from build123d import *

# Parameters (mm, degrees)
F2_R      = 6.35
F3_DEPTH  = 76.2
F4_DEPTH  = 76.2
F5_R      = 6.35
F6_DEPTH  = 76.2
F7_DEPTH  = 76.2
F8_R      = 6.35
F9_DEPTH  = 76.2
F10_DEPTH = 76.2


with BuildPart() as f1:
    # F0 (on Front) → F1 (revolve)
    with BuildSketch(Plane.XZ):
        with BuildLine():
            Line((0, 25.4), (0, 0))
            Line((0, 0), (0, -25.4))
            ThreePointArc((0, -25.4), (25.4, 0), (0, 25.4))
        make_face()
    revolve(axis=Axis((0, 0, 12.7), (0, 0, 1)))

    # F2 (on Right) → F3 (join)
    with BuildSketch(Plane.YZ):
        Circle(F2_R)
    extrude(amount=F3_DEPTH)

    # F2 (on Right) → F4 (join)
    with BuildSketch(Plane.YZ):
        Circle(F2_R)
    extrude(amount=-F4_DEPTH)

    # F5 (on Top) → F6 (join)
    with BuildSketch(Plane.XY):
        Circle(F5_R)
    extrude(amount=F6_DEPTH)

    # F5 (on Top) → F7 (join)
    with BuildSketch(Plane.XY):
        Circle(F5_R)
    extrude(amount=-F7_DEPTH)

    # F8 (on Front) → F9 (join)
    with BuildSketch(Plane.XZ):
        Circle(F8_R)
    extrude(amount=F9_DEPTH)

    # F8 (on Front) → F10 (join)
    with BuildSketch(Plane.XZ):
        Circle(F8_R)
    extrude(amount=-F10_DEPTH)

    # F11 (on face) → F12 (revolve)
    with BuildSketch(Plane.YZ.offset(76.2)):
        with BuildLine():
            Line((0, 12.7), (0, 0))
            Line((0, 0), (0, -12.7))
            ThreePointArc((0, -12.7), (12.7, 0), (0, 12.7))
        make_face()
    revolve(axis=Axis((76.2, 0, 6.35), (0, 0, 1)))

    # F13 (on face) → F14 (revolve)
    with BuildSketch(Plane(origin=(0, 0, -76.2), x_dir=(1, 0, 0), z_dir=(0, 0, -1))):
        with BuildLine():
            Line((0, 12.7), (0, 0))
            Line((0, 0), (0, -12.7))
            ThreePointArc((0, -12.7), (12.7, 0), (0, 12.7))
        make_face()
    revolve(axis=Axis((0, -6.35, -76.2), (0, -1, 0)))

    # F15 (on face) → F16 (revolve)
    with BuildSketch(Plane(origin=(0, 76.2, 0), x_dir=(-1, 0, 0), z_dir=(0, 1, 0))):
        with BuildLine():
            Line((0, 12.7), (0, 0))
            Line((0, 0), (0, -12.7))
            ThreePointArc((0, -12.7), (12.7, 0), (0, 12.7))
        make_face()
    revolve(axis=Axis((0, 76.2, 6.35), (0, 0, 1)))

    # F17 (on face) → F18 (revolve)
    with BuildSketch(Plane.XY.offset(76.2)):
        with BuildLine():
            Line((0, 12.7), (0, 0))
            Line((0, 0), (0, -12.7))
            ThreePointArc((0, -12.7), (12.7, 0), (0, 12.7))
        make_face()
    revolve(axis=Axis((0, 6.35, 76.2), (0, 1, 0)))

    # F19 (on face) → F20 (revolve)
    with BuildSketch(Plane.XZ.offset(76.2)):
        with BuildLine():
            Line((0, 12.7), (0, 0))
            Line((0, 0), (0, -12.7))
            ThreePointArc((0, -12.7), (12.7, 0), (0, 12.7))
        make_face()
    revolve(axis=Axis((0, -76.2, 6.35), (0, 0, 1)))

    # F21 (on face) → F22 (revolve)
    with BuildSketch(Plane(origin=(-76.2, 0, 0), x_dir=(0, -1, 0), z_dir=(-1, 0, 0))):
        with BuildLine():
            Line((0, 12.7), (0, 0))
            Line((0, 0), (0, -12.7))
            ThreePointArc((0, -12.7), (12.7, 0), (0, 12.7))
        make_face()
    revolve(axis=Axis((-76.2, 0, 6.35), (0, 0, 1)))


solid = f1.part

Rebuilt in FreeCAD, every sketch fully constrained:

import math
import FreeCAD as App
import Part
import Sketcher
Q = App.Units.Quantity

doc = App.newDocument("Part")
body = doc.addObject("PartDesign::Body", "Body")

# Sketch on XZ plane
sketch1 = body.newObject("Sketcher::SketchObject", "Sketch")
sketch1.AttachmentSupport = (doc.getObject("XZ_Plane"), [""])
sketch1.MapMode = "FlatFace"
sketch1.addGeometry(Part.LineSegment(App.Vector(0, 25.4, 0), App.Vector(0, -25.4, 0)), False)
sketch1.addGeometry(Part.ArcOfCircle(Part.Circle(App.Vector(0, 0, 0), App.Vector(0, 0, 1), 25.4), math.radians(-90), math.radians(90)), False)
sketch1.addConstraint(Sketcher.Constraint("Coincident", 0, 1, 1, 2))
sketch1.addConstraint(Sketcher.Constraint("Coincident", 1, 1, 0, 2))
sketch1.addConstraint(Sketcher.Constraint("Vertical", 0))
sketch1.addConstraint(Sketcher.Constraint("Coincident", 1, 3, -1, 1))
sketch1.addConstraint(Sketcher.Constraint("PointOnObject", 0, 1, -2))
sketch1.addConstraint(Sketcher.Constraint("Radius", 1, Q("1 in")))
revolution = body.newObject("PartDesign::Revolution", "Revolution")
revolution.Profile = sketch1
revolution.ReferenceAxis = (sketch1, ["V_Axis"])
revolution.Angle = 360

# Sketch on YZ plane
sketch2 = body.newObject("Sketcher::SketchObject", "Sketch001")
sketch2.AttachmentSupport = (doc.getObject("YZ_Plane"), [""])
sketch2.MapMode = "FlatFace"
sketch2.addGeometry(Part.Circle(App.Vector(0, 0, 0), App.Vector(0, 0, 1), 6.35), False)
sketch2.addConstraint(Sketcher.Constraint("Coincident", 0, 3, -1, 1))
sketch2.addConstraint(Sketcher.Constraint("Diameter", 0, Q("0.5 in")))
pad1 = body.newObject("PartDesign::Pad", "Pad")
pad1.Profile = sketch2
pad1.Length = Q("3 in")

# Sketch on YZ plane
sketch3 = body.newObject("Sketcher::SketchObject", "Sketch002")
sketch3.AttachmentSupport = (doc.getObject("YZ_Plane"), [""])
sketch3.MapMode = "FlatFace"
sketch3.addGeometry(Part.Circle(App.Vector(0, 0, 0), App.Vector(0, 0, 1), 6.35), False)
sketch3.addConstraint(Sketcher.Constraint("Coincident", 0, 3, -1, 1))
sketch3.addConstraint(Sketcher.Constraint("Diameter", 0, Q("0.5 in")))
pad2 = body.newObject("PartDesign::Pad", "Pad001")
pad2.Profile = sketch3
pad2.Length = Q("3 in")
pad2.Reversed = True

# Sketch on XY plane
sketch4 = body.newObject("Sketcher::SketchObject", "Sketch003")
sketch4.AttachmentSupport = (doc.getObject("XY_Plane"), [""])
sketch4.MapMode = "FlatFace"
sketch4.addGeometry(Part.Circle(App.Vector(0, 0, 0), App.Vector(0, 0, 1), 6.35), False)
sketch4.addConstraint(Sketcher.Constraint("Coincident", 0, 3, -1, 1))
sketch4.addConstraint(Sketcher.Constraint("Diameter", 0, Q("0.5 in")))
pad3 = body.newObject("PartDesign::Pad", "Pad002")
pad3.Profile = sketch4
pad3.Length = Q("3 in")

# Sketch on XY plane
sketch5 = body.newObject("Sketcher::SketchObject", "Sketch004")
sketch5.AttachmentSupport = (doc.getObject("XY_Plane"), [""])
sketch5.MapMode = "FlatFace"
sketch5.addGeometry(Part.Circle(App.Vector(0, 0, 0), App.Vector(0, 0, 1), 6.35), False)
sketch5.addConstraint(Sketcher.Constraint("Coincident", 0, 3, -1, 1))
sketch5.addConstraint(Sketcher.Constraint("Diameter", 0, Q("0.5 in")))
pad4 = body.newObject("PartDesign::Pad", "Pad003")
pad4.Profile = sketch5
pad4.Length = Q("3 in")
pad4.Reversed = True

# Sketch on XZ plane
sketch6 = body.newObject("Sketcher::SketchObject", "Sketch005")
sketch6.AttachmentSupport = (doc.getObject("XZ_Plane"), [""])
sketch6.MapMode = "FlatFace"
sketch6.addGeometry(Part.Circle(App.Vector(0, 0, 0), App.Vector(0, 0, 1), 6.35), False)
sketch6.addConstraint(Sketcher.Constraint("Coincident", 0, 3, -1, 1))
sketch6.addConstraint(Sketcher.Constraint("Diameter", 0, Q("0.5 in")))
pad5 = body.newObject("PartDesign::Pad", "Pad004")
pad5.Profile = sketch6
pad5.Length = Q("3 in")

# Sketch on XZ plane
sketch7 = body.newObject("Sketcher::SketchObject", "Sketch006")
sketch7.AttachmentSupport = (doc.getObject("XZ_Plane"), [""])
sketch7.MapMode = "FlatFace"
sketch7.addGeometry(Part.Circle(App.Vector(0, 0, 0), App.Vector(0, 0, 1), 6.35), False)
sketch7.addConstraint(Sketcher.Constraint("Coincident", 0, 3, -1, 1))
sketch7.addConstraint(Sketcher.Constraint("Diameter", 0, Q("0.5 in")))
pad6 = body.newObject("PartDesign::Pad", "Pad005")
pad6.Profile = sketch7
pad6.Length = Q("3 in")
pad6.Reversed = True

# Sketch on YZ plane
sketch8 = body.newObject("Sketcher::SketchObject", "Sketch007")
sketch8.AttachmentSupport = (doc.getObject("YZ_Plane"), [""])
sketch8.MapMode = "FlatFace"
sketch8.AttachmentOffset = App.Placement(App.Vector(0, 0, 3 * 25.4), App.Rotation())
sketch8.addGeometry(Part.LineSegment(App.Vector(0, 12.7, 0), App.Vector(0, -12.7, 0)), False)
sketch8.addGeometry(Part.ArcOfCircle(Part.Circle(App.Vector(0, 0, 0), App.Vector(0, 0, 1), 12.7), math.radians(-90), math.radians(90)), False)
sketch8.addConstraint(Sketcher.Constraint("Coincident", 0, 1, 1, 2))
sketch8.addConstraint(Sketcher.Constraint("Coincident", 1, 1, 0, 2))
sketch8.addConstraint(Sketcher.Constraint("Vertical", 0))
sketch8.addConstraint(Sketcher.Constraint("Coincident", 1, 3, -1, 1))
sketch8.addConstraint(Sketcher.Constraint("PointOnObject", 0, 1, -2))
sketch8.addConstraint(Sketcher.Constraint("Radius", 1, Q("0.5 in")))
revolution2 = body.newObject("PartDesign::Revolution", "Revolution001")
revolution2.Profile = sketch8
revolution2.ReferenceAxis = (sketch8, ["V_Axis"])
revolution2.Angle = 360

# Sketch on XY plane
sketch9 = body.newObject("Sketcher::SketchObject", "Sketch008")
sketch9.AttachmentSupport = (doc.getObject("XY_Plane"), [""])
sketch9.MapMode = "FlatFace"
sketch9.AttachmentOffset = App.Placement(App.Vector(0, 0, -3 * 25.4), App.Rotation())
sketch9.addGeometry(Part.LineSegment(App.Vector(0, -12.7, 0), App.Vector(0, 12.7, 0)), False)
sketch9.addGeometry(Part.ArcOfCircle(Part.Circle(App.Vector(0, 0, 0), App.Vector(0, 0, 1), 12.7), math.radians(-90), math.radians(90)), False)
sketch9.addConstraint(Sketcher.Constraint("Coincident", 0, 1, 1, 1))
sketch9.addConstraint(Sketcher.Constraint("Coincident", 1, 2, 0, 2))
sketch9.addConstraint(Sketcher.Constraint("Vertical", 0))
sketch9.addConstraint(Sketcher.Constraint("Coincident", 1, 3, -1, 1))
sketch9.addConstraint(Sketcher.Constraint("PointOnObject", 0, 1, -2))
sketch9.addConstraint(Sketcher.Constraint("Radius", 1, Q("0.5 in")))
revolution3 = body.newObject("PartDesign::Revolution", "Revolution002")
revolution3.Profile = sketch9
revolution3.ReferenceAxis = (sketch9, ["V_Axis"])
revolution3.Angle = 360

# Sketch on XZ plane
sketch10 = body.newObject("Sketcher::SketchObject", "Sketch009")
sketch10.AttachmentSupport = (doc.getObject("XZ_Plane"), [""])
sketch10.MapMode = "FlatFace"
sketch10.AttachmentOffset = App.Placement(App.Vector(0, 0, -3 * 25.4), App.Rotation())
sketch10.addGeometry(Part.LineSegment(App.Vector(0, 12.7, 0), App.Vector(0, -12.7, 0)), False)
sketch10.addGeometry(Part.ArcOfCircle(Part.Circle(App.Vector(0, 0, 0), App.Vector(0, 0, 1), 12.7), math.radians(90), math.radians(270)), False)
sketch10.addConstraint(Sketcher.Constraint("Coincident", 0, 1, 1, 1))
sketch10.addConstraint(Sketcher.Constraint("Coincident", 1, 2, 0, 2))
sketch10.addConstraint(Sketcher.Constraint("Vertical", 0))
sketch10.addConstraint(Sketcher.Constraint("Coincident", 1, 3, -1, 1))
sketch10.addConstraint(Sketcher.Constraint("PointOnObject", 0, 1, -2))
sketch10.addConstraint(Sketcher.Constraint("Radius", 1, Q("0.5 in")))
revolution4 = body.newObject("PartDesign::Revolution", "Revolution003")
revolution4.Profile = sketch10
revolution4.ReferenceAxis = (sketch10, ["V_Axis"])
revolution4.Angle = 360

# Sketch on XY plane
sketch11 = body.newObject("Sketcher::SketchObject", "Sketch010")
sketch11.AttachmentSupport = (doc.getObject("XY_Plane"), [""])
sketch11.MapMode = "FlatFace"
sketch11.AttachmentOffset = App.Placement(App.Vector(0, 0, 3 * 25.4), App.Rotation())
sketch11.addGeometry(Part.LineSegment(App.Vector(0, 12.7, 0), App.Vector(0, -12.7, 0)), False)
sketch11.addGeometry(Part.ArcOfCircle(Part.Circle(App.Vector(0, 0, 0), App.Vector(0, 0, 1), 12.7), math.radians(-90), math.radians(90)), False)
sketch11.addConstraint(Sketcher.Constraint("Coincident", 0, 1, 1, 2))
sketch11.addConstraint(Sketcher.Constraint("Coincident", 1, 1, 0, 2))
sketch11.addConstraint(Sketcher.Constraint("Vertical", 0))
sketch11.addConstraint(Sketcher.Constraint("Coincident", 1, 3, -1, 1))
sketch11.addConstraint(Sketcher.Constraint("PointOnObject", 0, 1, -2))
sketch11.addConstraint(Sketcher.Constraint("Radius", 1, Q("0.5 in")))
revolution5 = body.newObject("PartDesign::Revolution", "Revolution004")
revolution5.Profile = sketch11
revolution5.ReferenceAxis = (sketch11, ["V_Axis"])
revolution5.Angle = 360

# Sketch on XZ plane
sketch12 = body.newObject("Sketcher::SketchObject", "Sketch011")
sketch12.AttachmentSupport = (doc.getObject("XZ_Plane"), [""])
sketch12.MapMode = "FlatFace"
sketch12.AttachmentOffset = App.Placement(App.Vector(0, 0, 3 * 25.4), App.Rotation())
sketch12.addGeometry(Part.LineSegment(App.Vector(0, 12.7, 0), App.Vector(0, -12.7, 0)), False)
sketch12.addGeometry(Part.ArcOfCircle(Part.Circle(App.Vector(0, 0, 0), App.Vector(0, 0, 1), 12.7), math.radians(-90), math.radians(90)), False)
sketch12.addConstraint(Sketcher.Constraint("Coincident", 0, 1, 1, 2))
sketch12.addConstraint(Sketcher.Constraint("Coincident", 1, 1, 0, 2))
sketch12.addConstraint(Sketcher.Constraint("Vertical", 0))
sketch12.addConstraint(Sketcher.Constraint("Coincident", 1, 3, -1, 1))
sketch12.addConstraint(Sketcher.Constraint("PointOnObject", 0, 1, -2))
sketch12.addConstraint(Sketcher.Constraint("Radius", 1, Q("0.5 in")))
revolution6 = body.newObject("PartDesign::Revolution", "Revolution005")
revolution6.Profile = sketch12
revolution6.ReferenceAxis = (sketch12, ["V_Axis"])
revolution6.Angle = 360

# Sketch on YZ plane
sketch13 = body.newObject("Sketcher::SketchObject", "Sketch012")
sketch13.AttachmentSupport = (doc.getObject("YZ_Plane"), [""])
sketch13.MapMode = "FlatFace"
sketch13.AttachmentOffset = App.Placement(App.Vector(0, 0, -3 * 25.4), App.Rotation())
sketch13.addGeometry(Part.LineSegment(App.Vector(0, 12.7, 0), App.Vector(0, -12.7, 0)), False)
sketch13.addGeometry(Part.ArcOfCircle(Part.Circle(App.Vector(0, 0, 0), App.Vector(0, 0, 1), 12.7), math.radians(90), math.radians(270)), False)
sketch13.addConstraint(Sketcher.Constraint("Coincident", 0, 1, 1, 1))
sketch13.addConstraint(Sketcher.Constraint("Coincident", 1, 2, 0, 2))
sketch13.addConstraint(Sketcher.Constraint("Vertical", 0))
sketch13.addConstraint(Sketcher.Constraint("Coincident", 1, 3, -1, 1))
sketch13.addConstraint(Sketcher.Constraint("PointOnObject", 0, 1, -2))
sketch13.addConstraint(Sketcher.Constraint("Radius", 1, Q("0.5 in")))
revolution7 = body.newObject("PartDesign::Revolution", "Revolution006")
revolution7.Profile = sketch13
revolution7.ReferenceAxis = (sketch13, ["V_Axis"])
revolution7.Angle = 360

doc.recompute()
